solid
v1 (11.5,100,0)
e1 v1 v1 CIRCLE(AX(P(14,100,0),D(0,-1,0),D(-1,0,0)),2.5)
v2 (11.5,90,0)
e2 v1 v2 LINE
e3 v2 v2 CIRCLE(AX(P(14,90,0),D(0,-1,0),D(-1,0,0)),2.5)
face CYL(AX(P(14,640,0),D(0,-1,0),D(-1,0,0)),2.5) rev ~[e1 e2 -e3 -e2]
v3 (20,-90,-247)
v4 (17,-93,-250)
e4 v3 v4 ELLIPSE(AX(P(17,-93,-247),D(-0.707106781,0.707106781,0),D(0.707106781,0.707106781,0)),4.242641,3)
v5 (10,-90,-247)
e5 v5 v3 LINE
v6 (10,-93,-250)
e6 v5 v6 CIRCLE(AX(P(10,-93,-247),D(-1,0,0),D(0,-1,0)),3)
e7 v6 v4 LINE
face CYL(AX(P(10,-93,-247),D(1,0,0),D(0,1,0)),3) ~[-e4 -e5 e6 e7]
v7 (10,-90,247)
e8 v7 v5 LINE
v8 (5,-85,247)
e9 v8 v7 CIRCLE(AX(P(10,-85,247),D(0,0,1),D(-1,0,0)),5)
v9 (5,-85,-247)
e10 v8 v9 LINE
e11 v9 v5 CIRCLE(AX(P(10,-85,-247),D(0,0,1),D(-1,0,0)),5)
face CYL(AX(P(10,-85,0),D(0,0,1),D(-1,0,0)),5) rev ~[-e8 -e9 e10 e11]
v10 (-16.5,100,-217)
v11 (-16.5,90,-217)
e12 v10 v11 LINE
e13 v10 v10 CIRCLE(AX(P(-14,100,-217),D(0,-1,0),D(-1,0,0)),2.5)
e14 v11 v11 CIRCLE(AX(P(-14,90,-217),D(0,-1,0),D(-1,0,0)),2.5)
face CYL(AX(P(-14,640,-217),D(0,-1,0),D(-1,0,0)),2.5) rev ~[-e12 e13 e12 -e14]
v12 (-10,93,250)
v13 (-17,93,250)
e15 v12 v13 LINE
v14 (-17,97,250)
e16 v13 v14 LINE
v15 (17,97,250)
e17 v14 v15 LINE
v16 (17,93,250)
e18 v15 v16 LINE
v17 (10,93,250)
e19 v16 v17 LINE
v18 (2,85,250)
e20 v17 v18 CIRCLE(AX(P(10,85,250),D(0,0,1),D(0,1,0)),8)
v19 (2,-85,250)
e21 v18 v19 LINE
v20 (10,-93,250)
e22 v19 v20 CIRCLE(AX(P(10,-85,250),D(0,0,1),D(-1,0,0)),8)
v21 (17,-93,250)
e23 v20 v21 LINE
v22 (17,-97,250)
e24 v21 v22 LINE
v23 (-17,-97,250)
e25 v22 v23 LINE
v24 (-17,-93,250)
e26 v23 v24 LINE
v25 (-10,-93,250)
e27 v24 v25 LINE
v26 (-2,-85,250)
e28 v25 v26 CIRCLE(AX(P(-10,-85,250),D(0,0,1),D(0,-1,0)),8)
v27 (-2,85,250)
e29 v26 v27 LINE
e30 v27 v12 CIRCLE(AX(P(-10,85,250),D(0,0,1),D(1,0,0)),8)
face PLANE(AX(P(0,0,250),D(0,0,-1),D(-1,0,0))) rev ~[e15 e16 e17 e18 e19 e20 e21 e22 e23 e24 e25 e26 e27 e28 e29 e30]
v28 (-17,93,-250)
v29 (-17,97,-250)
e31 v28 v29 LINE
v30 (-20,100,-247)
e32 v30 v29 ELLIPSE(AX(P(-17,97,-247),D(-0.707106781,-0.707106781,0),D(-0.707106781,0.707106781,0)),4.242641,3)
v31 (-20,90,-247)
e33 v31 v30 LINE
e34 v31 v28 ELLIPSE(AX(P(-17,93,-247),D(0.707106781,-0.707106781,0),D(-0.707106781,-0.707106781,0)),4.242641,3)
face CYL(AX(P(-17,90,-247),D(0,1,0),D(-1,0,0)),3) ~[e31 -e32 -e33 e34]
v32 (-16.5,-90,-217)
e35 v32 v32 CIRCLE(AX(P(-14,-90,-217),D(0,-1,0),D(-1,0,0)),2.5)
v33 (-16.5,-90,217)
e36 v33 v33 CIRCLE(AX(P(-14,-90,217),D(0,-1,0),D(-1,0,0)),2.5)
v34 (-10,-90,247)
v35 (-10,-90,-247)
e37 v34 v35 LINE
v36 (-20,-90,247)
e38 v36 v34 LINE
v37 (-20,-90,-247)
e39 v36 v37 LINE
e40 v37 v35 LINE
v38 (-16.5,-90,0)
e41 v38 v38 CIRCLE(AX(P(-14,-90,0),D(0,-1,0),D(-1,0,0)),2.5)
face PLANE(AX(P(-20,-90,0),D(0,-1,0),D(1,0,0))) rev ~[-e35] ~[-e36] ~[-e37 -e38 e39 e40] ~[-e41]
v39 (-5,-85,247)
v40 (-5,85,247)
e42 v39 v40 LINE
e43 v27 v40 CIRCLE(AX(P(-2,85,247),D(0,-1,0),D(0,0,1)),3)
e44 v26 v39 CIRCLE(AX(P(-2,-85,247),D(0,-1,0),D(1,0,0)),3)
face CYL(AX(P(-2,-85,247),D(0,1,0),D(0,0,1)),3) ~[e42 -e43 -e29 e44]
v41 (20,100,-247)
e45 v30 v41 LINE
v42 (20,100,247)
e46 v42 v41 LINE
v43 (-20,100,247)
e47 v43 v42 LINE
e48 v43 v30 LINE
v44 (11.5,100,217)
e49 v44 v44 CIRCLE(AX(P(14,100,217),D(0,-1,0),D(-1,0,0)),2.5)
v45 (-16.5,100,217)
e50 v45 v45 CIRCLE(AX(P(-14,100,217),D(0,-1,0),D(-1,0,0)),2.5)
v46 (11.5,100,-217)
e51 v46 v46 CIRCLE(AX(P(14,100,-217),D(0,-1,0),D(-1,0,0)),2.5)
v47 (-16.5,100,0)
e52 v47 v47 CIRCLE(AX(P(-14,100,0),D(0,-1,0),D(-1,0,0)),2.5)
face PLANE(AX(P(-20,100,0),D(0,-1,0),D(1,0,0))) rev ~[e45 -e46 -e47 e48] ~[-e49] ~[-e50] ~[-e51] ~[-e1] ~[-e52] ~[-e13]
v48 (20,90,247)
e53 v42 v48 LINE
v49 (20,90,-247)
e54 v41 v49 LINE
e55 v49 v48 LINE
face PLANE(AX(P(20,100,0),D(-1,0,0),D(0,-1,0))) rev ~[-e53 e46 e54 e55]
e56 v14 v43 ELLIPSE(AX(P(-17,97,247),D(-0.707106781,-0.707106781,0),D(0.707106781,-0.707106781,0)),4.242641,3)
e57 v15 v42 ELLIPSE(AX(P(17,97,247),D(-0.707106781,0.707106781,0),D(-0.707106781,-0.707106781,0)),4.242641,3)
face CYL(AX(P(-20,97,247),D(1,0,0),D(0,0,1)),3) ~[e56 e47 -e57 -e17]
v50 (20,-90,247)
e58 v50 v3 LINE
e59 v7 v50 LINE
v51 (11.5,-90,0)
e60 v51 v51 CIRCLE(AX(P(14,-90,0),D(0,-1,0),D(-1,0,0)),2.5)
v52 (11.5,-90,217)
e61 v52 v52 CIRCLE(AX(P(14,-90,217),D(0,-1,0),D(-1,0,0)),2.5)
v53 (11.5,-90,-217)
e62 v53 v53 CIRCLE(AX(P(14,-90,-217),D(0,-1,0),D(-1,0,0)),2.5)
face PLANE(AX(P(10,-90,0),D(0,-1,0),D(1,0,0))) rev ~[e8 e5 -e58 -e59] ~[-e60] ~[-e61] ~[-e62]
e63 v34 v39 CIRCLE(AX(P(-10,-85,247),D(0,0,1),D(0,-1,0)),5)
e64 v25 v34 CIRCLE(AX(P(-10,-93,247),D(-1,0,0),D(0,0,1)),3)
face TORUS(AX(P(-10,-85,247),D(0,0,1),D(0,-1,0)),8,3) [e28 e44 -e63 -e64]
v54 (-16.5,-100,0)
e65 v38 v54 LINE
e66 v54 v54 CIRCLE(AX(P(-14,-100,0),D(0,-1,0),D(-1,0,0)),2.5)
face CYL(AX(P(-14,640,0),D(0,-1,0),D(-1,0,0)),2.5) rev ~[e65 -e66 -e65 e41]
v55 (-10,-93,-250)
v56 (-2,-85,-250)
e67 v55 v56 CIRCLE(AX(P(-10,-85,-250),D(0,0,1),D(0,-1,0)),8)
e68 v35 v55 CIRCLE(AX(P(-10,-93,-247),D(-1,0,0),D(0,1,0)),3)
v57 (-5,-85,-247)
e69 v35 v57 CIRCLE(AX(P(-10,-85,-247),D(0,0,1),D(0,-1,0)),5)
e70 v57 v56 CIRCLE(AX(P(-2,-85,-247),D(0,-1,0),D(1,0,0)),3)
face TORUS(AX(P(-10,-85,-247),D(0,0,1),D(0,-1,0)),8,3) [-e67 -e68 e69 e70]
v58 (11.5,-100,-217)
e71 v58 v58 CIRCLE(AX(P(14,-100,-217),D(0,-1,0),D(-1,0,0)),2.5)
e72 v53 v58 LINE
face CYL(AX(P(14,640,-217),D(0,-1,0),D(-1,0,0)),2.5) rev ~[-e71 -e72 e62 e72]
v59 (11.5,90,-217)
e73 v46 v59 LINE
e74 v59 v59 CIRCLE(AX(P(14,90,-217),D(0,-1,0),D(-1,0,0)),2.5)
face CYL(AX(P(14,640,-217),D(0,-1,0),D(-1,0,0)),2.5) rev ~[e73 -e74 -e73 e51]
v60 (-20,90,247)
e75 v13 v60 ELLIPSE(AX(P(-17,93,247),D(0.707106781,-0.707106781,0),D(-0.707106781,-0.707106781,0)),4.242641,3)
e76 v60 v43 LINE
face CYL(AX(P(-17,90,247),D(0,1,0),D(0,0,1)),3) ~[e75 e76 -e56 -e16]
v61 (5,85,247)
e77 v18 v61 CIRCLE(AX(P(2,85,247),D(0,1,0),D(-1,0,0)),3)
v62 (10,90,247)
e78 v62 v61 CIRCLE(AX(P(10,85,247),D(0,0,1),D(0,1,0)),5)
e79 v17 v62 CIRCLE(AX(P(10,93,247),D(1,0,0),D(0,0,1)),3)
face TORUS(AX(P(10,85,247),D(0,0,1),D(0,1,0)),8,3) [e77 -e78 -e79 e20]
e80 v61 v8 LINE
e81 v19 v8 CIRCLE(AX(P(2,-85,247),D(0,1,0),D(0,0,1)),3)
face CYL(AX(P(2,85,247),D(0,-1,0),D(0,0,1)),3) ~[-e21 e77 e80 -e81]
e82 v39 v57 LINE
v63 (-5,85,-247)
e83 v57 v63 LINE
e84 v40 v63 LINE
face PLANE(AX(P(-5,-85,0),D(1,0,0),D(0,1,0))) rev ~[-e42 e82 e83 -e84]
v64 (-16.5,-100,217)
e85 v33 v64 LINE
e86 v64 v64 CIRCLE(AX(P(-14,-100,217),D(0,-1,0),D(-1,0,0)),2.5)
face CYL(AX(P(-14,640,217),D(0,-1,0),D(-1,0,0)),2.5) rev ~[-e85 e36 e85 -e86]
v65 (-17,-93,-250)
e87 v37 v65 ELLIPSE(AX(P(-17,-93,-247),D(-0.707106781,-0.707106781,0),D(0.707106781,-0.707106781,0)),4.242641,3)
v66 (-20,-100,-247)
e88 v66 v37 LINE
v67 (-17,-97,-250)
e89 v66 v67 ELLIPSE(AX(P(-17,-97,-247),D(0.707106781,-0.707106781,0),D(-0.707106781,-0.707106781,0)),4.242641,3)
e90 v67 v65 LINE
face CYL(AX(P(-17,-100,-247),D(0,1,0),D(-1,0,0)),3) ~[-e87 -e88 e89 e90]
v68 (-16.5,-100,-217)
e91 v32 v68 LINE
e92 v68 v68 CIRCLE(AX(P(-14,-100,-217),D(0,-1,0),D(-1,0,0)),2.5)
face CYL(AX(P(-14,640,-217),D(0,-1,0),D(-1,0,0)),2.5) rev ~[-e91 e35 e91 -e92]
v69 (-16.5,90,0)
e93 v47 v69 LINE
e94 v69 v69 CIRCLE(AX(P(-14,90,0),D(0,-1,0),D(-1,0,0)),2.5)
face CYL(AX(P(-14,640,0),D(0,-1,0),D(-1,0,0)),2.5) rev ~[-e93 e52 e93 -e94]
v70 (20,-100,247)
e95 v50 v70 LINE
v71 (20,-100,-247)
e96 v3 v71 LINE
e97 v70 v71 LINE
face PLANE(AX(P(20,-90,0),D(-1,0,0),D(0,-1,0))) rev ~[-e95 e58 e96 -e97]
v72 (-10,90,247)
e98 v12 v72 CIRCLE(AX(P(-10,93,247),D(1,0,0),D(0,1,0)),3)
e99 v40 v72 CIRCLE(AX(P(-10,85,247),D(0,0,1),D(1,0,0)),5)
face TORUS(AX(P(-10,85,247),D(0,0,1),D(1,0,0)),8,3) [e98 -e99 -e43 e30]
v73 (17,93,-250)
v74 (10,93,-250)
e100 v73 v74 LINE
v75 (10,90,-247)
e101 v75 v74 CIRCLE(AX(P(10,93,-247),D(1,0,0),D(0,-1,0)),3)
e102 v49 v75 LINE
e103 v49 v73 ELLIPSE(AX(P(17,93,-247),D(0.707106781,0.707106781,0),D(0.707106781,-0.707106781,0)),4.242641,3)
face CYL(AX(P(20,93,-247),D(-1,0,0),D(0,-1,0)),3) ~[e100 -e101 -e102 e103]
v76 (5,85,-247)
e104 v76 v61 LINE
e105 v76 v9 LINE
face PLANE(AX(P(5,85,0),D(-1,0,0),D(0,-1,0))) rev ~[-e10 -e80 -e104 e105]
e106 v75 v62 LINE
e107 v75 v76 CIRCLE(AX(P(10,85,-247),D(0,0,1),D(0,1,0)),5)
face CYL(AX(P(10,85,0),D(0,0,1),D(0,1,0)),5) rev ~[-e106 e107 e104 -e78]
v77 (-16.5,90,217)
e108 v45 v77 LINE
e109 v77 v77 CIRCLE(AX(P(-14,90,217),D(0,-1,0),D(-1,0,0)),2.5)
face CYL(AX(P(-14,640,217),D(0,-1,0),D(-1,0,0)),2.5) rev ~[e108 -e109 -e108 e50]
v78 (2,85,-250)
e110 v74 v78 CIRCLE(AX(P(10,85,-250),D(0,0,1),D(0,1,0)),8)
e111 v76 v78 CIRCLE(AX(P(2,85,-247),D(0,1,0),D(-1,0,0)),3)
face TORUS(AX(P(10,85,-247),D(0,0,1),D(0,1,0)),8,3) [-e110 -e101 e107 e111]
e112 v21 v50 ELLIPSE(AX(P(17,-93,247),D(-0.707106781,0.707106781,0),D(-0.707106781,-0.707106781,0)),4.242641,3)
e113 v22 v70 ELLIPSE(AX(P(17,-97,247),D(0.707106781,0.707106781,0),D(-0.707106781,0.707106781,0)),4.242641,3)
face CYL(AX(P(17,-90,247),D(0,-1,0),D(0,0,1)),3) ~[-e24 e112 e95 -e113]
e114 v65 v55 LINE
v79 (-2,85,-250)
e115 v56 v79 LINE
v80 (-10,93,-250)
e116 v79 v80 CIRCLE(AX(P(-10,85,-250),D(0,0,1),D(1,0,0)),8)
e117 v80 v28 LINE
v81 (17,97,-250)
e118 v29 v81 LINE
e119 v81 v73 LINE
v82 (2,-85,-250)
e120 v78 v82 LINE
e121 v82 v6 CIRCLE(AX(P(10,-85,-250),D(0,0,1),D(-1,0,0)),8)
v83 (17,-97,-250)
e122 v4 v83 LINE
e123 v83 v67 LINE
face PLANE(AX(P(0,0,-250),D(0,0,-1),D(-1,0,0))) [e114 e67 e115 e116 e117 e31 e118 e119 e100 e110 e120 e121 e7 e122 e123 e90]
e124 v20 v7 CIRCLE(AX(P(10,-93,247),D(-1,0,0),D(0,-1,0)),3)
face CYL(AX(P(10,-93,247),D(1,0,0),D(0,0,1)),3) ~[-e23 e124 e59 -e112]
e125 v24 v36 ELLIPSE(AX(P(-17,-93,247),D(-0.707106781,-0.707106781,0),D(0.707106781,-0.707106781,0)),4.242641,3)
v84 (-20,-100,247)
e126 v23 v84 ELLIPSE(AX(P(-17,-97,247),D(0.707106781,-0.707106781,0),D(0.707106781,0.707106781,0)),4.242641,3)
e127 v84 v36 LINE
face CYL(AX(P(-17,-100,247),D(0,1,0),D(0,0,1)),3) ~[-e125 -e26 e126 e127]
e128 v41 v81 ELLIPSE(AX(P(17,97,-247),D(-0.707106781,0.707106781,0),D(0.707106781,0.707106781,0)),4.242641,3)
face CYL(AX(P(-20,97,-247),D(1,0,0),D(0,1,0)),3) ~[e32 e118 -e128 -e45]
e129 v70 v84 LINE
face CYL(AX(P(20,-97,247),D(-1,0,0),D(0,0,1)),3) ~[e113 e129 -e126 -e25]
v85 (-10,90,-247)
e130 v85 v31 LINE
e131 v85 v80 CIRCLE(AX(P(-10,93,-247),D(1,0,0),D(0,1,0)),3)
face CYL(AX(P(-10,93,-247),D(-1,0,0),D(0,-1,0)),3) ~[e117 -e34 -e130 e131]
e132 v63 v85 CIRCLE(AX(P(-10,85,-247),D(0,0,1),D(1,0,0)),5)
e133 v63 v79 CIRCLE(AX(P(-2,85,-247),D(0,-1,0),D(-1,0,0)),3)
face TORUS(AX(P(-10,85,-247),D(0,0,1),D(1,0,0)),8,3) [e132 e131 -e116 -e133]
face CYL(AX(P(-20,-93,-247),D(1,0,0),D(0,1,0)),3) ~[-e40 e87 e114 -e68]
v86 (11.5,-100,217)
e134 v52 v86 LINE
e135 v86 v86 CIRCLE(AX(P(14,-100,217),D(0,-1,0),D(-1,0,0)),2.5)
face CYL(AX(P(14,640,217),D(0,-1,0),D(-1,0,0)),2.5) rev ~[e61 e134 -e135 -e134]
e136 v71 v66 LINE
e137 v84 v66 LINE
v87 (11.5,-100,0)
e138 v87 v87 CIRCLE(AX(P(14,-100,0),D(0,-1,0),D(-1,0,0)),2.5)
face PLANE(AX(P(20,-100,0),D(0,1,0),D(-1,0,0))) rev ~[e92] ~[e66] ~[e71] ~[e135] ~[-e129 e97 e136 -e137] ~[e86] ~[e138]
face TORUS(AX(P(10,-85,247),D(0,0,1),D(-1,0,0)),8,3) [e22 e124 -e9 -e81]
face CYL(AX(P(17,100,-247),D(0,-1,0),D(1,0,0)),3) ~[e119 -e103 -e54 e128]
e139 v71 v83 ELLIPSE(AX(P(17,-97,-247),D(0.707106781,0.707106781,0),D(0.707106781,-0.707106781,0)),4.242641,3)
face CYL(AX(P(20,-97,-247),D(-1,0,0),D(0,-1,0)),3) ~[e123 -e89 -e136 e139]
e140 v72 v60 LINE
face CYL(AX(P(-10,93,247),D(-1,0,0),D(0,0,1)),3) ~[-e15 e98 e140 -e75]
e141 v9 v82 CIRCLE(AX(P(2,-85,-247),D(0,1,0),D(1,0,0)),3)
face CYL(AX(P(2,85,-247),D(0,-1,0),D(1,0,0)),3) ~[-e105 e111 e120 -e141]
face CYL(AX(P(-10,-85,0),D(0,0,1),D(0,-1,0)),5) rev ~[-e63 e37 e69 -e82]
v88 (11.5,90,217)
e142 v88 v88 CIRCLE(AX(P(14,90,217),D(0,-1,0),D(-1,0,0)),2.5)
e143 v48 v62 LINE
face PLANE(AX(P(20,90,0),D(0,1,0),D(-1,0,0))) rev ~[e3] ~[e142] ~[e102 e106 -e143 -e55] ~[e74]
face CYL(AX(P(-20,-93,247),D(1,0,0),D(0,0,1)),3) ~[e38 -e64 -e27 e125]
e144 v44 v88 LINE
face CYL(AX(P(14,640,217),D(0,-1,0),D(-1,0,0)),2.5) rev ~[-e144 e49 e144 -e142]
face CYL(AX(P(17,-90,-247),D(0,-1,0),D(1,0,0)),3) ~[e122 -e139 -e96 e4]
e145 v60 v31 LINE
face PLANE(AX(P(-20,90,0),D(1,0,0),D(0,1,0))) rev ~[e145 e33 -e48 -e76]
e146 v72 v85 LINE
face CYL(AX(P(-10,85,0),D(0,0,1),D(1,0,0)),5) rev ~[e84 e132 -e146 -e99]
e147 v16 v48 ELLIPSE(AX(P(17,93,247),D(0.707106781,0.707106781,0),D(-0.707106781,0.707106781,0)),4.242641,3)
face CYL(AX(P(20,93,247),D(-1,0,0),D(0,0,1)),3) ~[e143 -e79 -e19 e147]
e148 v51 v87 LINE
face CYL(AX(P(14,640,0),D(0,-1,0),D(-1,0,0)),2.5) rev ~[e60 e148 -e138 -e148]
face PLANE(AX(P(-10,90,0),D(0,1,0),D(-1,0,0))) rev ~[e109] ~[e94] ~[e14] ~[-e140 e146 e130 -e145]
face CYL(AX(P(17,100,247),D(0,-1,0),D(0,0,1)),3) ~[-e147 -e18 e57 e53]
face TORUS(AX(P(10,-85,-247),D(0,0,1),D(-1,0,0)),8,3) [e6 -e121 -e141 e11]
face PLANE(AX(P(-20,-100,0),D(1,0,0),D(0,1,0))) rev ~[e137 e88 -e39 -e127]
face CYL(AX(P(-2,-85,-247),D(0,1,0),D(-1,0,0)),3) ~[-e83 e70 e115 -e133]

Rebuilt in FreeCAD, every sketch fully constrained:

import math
import FreeCAD as App
import Part
import Sketcher


def edges_at(feature, points):
    """Names of the edges that pass closest to the given points."""
    edges = feature.Shape.Edges
    near = lambda p: min(range(len(edges)), key=lambda i: edges[i].distToShape(Part.Vertex(*p))[0])
    return sorted({f"Edge{near(p) + 1}" for p in points})

doc = App.newDocument("Part")
params = doc.addObject("Spreadsheet::Sheet", "Params")
for row, (alias, value) in enumerate([
    ("sketch1_radius", "5 mm"),
    ("sketch1_width", "10 mm"),
    ("sketch1_width2", "40 mm"),
    ("sketch1_height", "170 mm"),
    ("pad1_length", "500 mm"),
    ("fillet_radius", "3 mm"),
    ("sketch2_diameter", "5 mm"),
    ("hole_diameter", "5 mm"),
], start=1):
    params.set(f"A{row}", alias)
    params.set(f"B{row}", "=" + value)
    params.setAlias(f"B{row}", alias)

body = doc.addObject("PartDesign::Body", "Body")

sketch1 = body.newObject("Sketcher::SketchObject", "Sketch")
sketch1.AttachmentSupport = (doc.getObject("XY_Plane"), [""])
sketch1.MapMode = "FlatFace"
sketch1.addGeometry([
    Part.LineSegment(App.Vector(5, -85, 0), App.Vector(5, 85, 0)),
    Part.ArcOfCircle(Part.Circle(App.Vector(10, 85, 0), App.Vector(0, 0, 1), 5), math.radians(90), math.radians(180)),
    Part.LineSegment(App.Vector(10, 90, 0), App.Vector(20, 90, 0)),
    Part.LineSegment(App.Vector(20, 90, 0), App.Vector(20, 100, 0)),
    Part.LineSegment(App.Vector(20, 100, 0), App.Vector(-20, 100, 0)),
    Part.LineSegment(App.Vector(-20, 100, 0), App.Vector(-20, 90, 0)),
    Part.LineSegment(App.Vector(-20, 90, 0), App.Vector(-10, 90, 0)),
    Part.ArcOfCircle(Part.Circle(App.Vector(-10, 85, 0), App.Vector(0, 0, 1), 5), math.radians(0), math.radians(90)),
    Part.LineSegment(App.Vector(-5, 85, 0), App.Vector(-5, -85, 0)),
    Part.ArcOfCircle(Part.Circle(App.Vector(-10, -85, 0), App.Vector(0, 0, 1), 5), math.radians(-90), math.radians(0)),
    Part.LineSegment(App.Vector(-10, -90, 0), App.Vector(-20, -90, 0)),
    Part.LineSegment(App.Vector(-20, -90, 0), App.Vector(-20, -100, 0)),
    Part.LineSegment(App.Vector(-20, -100, 0), App.Vector(20, -100, 0)),
    Part.LineSegment(App.Vector(20, -100, 0), App.Vector(20, -90, 0)),
    Part.LineSegment(App.Vector(20, -90, 0), App.Vector(10, -90, 0)),
    Part.ArcOfCircle(Part.Circle(App.Vector(10, -85, 0), App.Vector(0, 0, 1), 5), math.radians(180), math.radians(270)),
], False)
sketch1.addConstraint([
    Sketcher.Constraint("Tangent", 0, 2, 1, 2),
    Sketcher.Constraint("Tangent", 1, 1, 2, 1),
    Sketcher.Constraint("Coincident", 2, 2, 3, 1),
    Sketcher.Constraint("Coincident", 3, 2, 4, 1),
    Sketcher.Constraint("Coincident", 4, 2, 5, 1),
    Sketcher.Constraint("Coincident", 5, 2, 6, 1),
    Sketcher.Constraint("Tangent", 6, 2, 7, 2),
    Sketcher.Constraint("Tangent", 7, 1, 8, 1),
    Sketcher.Constraint("Tangent", 8, 2, 9, 2),
    Sketcher.Constraint("Tangent", 9, 1, 10, 1),
    Sketcher.Constraint("Coincident", 10, 2, 11, 1),
    Sketcher.Constraint("Coincident", 11, 2, 12, 1),
    Sketcher.Constraint("Coincident", 12, 2, 13, 1),
    Sketcher.Constraint("Coincident", 13, 2, 14, 1),
    Sketcher.Constraint("Tangent", 14, 2, 15, 2),
    Sketcher.Constraint("Tangent", 15, 1, 0, 1),
    Sketcher.Constraint("Vertical", 0),
    Sketcher.Constraint("Horizontal", 2),
    Sketcher.Constraint("Vertical", 3),
    Sketcher.Constraint("Horizontal", 4),
    Sketcher.Constraint("Vertical", 5),
    Sketcher.Constraint("Horizontal", 6),
    Sketcher.Constraint("Vertical", 8),
    Sketcher.Constraint("Horizontal", 10),
    Sketcher.Constraint("Vertical", 11),
    Sketcher.Constraint("Horizontal", 12),
    Sketcher.Constraint("Vertical", 13),
    Sketcher.Constraint("Horizontal", 14),
    Sketcher.Constraint("Equal", 1, 7),
    Sketcher.Constraint("Equal", 7, 9),
    Sketcher.Constraint("Equal", 9, 15),
    Sketcher.Constraint("Symmetric", 1, 3, 9, 3, -1, 1),
    Sketcher.Constraint("Symmetric", 3, 2, 11, 2, -1, 1),
    Sketcher.Constraint("Symmetric", 5, 2, 13, 2, -1, 1),
    Sketcher.Constraint("Symmetric", 2, 2, 5, 2, -2),
    Sketcher.Constraint("Equal", 14, 3),
    Sketcher.Constraint("Radius", 1, 5.0),
    Sketcher.Constraint("DistanceX", 2, 1, 2, 2, 10.0),
    Sketcher.Constraint("DistanceX", 4, 2, 4, 1, 40.0),
    Sketcher.Constraint("DistanceY", 0, 1, 0, 2, 170.0),
])
sketch1.setExpression("Constraints[36]", "Params.sketch1_radius")
sketch1.setExpression("Constraints[37]", "Params.sketch1_width")
sketch1.setExpression("Constraints[38]", "Params.sketch1_width2")
sketch1.setExpression("Constraints[39]", "Params.sketch1_height")
pad1 = body.newObject("PartDesign::Pad", "Pad")
pad1.Profile = sketch1
pad1.setExpression("Length", "Params.pad1_length")
pad1.Midplane = True
doc.recompute()

fillet = body.newObject("PartDesign::Fillet", "Fillet")
fillet.Base = (pad1, edges_at(pad1, [
    (-5, 0, 250),
    (-6.464, -88.536, 250),
    (-15, 90, -250),
    (-20, 95, -250),
    (0, 100, -250),
    (20, 95, -250),
    (15, 90, -250),
    (6.464, 88.536, -250),
    (-15, -90, 250),
    (5, 0, -250),
    (6.464, -88.536, -250),
    (15, -90, -250),
    (20, -95, -250),
    (0, -100, -250),
    (-20, -95, -250),
    (-15, -90, -250),
    (-6.464, -88.536, -250),
    (-5, 0, -250),
    (-6.464, 88.536, -250),
    (-20, -95, 250),
    (0, -100, 250),
    (20, -95, 250),
    (15, -90, 250),
    (6.464, -88.536, 250),
    (5, 0, 250),
    (6.464, 88.536, 250),
    (-6.464, 88.536, 250),
    (15, 90, 250),
    (20, 95, 250),
    (0, 100, 250),
    (-20, 95, 250),
    (-15, 90, 250),
]))
fillet.setExpression("Radius", "Params.fillet_radius")

sketch2 = body.newObject("Sketcher::SketchObject", "Sketch001")
sketch2.AttachmentSupport = (doc.getObject("XZ_Plane"), [""])
sketch2.MapMode = "FlatFace"
sketch2.AttachmentOffset = App.Placement(App.Vector(0, 0, -100), App.Rotation())
sketch2.addGeometry([
    Part.Circle(App.Vector(14, -217, 0), App.Vector(0, 0, 1), 2.5),
    Part.Circle(App.Vector(-14, -217, 0), App.Vector(0, 0, 1), 2.5),
    Part.Circle(App.Vector(-14, 217, 0), App.Vector(0, 0, 1), 2.5),
    Part.Circle(App.Vector(14, 217, 0), App.Vector(0, 0, 1), 2.5),
    Part.Circle(App.Vector(-14, 0, 0), App.Vector(0, 0, 1), 2.5),
    Part.Circle(App.Vector(14, 0, 0), App.Vector(0, 0, 1), 2.5),
], False)
sketch2.addConstraint([
    Sketcher.Constraint("Equal", 0, 1),
    Sketcher.Constraint("Equal", 1, 2),
    Sketcher.Constraint("Equal", 2, 3),
    Sketcher.Constraint("Equal", 3, 4),
    Sketcher.Constraint("Equal", 4, 5),
    Sketcher.Constraint("Symmetric", 0, 3, 2, 3, -1, 1),
    Sketcher.Constraint("Symmetric", 1, 3, 3, 3, -1, 1),
    Sketcher.Constraint("Symmetric", 4, 3, 5, 3, -1, 1),
    Sketcher.Constraint("Symmetric", 0, 3, 1, 3, -2),
    Sketcher.Constraint("PointOnObject", 4, 3, -1),
    Sketcher.Constraint("Vertical", 2, 3, 4, 3),
    Sketcher.Constraint("Diameter", 0, 5.0),
    Sketcher.Constraint("DistanceX", -1, 1, 0, 3, 14.0),
    Sketcher.Constraint("DistanceY", 0, 3, -1, 1, 217.0),
])
sketch2.setExpression("Constraints[11]", "Params.sketch2_diameter")
doc.recompute()
hole = body.newObject("PartDesign::Hole", "Hole")
hole.Profile = sketch2
hole.ThreadType = "None"
hole.setExpression("Diameter", "Params.hole_diameter")
hole.DepthType = "ThroughAll"
hole.Reversed = True

doc.recompute()
